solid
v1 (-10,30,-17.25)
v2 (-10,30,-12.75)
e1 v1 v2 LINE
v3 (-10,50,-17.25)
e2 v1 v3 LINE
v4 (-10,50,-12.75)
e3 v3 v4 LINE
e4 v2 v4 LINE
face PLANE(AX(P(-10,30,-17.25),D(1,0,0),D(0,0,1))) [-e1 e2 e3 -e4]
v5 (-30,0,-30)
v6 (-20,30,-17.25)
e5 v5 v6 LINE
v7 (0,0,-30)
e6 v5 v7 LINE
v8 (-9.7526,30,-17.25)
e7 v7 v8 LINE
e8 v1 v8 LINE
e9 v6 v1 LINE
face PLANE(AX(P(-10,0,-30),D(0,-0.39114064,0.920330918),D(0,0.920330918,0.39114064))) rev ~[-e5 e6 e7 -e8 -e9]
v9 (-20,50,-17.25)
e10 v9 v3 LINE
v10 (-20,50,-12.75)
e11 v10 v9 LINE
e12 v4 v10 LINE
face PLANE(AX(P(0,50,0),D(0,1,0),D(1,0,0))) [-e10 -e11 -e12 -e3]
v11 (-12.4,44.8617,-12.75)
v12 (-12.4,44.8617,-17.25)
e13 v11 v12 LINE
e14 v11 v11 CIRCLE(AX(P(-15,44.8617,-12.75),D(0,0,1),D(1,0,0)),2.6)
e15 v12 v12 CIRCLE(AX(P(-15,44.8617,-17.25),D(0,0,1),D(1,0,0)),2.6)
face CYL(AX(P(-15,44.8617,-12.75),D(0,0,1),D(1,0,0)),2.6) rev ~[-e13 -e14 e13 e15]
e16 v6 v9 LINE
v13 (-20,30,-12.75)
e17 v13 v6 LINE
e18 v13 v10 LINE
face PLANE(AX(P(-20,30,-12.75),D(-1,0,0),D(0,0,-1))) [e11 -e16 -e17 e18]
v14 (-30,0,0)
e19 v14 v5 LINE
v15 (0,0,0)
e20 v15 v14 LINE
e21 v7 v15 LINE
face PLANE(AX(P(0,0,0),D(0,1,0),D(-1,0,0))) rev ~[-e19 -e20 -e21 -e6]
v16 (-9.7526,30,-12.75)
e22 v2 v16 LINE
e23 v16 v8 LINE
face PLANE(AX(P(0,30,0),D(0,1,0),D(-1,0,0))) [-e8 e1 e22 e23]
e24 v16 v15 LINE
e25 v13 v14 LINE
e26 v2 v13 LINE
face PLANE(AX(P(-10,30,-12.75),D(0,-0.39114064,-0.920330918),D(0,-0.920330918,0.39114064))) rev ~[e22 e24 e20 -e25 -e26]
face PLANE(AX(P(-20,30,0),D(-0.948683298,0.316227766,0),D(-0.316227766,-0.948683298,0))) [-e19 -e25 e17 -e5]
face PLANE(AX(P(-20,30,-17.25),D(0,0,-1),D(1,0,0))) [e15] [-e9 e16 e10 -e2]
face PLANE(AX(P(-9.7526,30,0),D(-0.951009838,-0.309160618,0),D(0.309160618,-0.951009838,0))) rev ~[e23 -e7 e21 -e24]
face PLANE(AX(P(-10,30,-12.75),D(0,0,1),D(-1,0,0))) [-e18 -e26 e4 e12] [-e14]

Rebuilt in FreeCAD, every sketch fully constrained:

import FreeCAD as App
import Part
import Sketcher


def add_polygon(sketch, points):
    """Adds a closed chain of lines whose ends are joined by coincident constraints."""
    first, n = sketch.GeometryCount, len(points)
    for a, b in zip(points, points[1:] + points[:1]):
        sketch.addGeometry(Part.LineSegment(App.Vector(*a, 0), App.Vector(*b, 0)), False)
    for i in range(n):
        sketch.addConstraint(Sketcher.Constraint("Coincident", first + i, 2, first + (i + 1) % n, 1))

doc = App.newDocument("Part")
body = doc.addObject("PartDesign::Body", "Body")

# Sketch on XZ plane
sketch1 = body.newObject("Sketcher::SketchObject", "Sketch")
sketch1.AttachmentSupport = (doc.getObject("XZ_Plane"), [""])
sketch1.MapMode = "FlatFace"
add_polygon(sketch1, [(-30, 0), (0, 0), (0, -30), (-30, -30)])  # lines 0-3
sketch1.addConstraint([
    Sketcher.Constraint("Horizontal", 0),
    Sketcher.Constraint("Vertical", 1),
    Sketcher.Constraint("Horizontal", 2),
    Sketcher.Constraint("Vertical", 3),
    Sketcher.Constraint("Coincident", 0, 2, -1, 1),
    Sketcher.Constraint("Equal", 2, 1),
    Sketcher.Constraint("DistanceX", 0, 1, 0, 2, 30.0),
])
pad1 = body.newObject("PartDesign::Pad", "Pad")
pad1.Profile = sketch1
pad1.Length = 30
pad1.Reversed = True

# Sketch on XZ plane
sketch2 = body.newObject("Sketcher::SketchObject", "Sketch001")
sketch2.AttachmentSupport = (doc.getObject("XZ_Plane"), [""])
sketch2.MapMode = "FlatFace"
sketch2.AttachmentOffset = App.Placement(App.Vector(0, 0, -30), App.Rotation())
add_polygon(sketch2, [(-10, -17.2), (-20, -17.2), (-20, -12.8), (-10, -12.8)])  # lines 0-3
sketch2.addConstraint([
    Sketcher.Constraint("Horizontal", 0),
    Sketcher.Constraint("Vertical", 1),
    Sketcher.Constraint("Horizontal", 2),
    Sketcher.Constraint("Vertical", 3),
    Sketcher.Constraint("DistanceX", 0, 2, 0, 1, 10.0),
    Sketcher.Constraint("DistanceY", 1, 1, 1, 2, 4.5),
    Sketcher.Constraint("DistanceX", 2, 2, -1, 1, 10.0),
    Sketcher.Constraint("DistanceY", 0, 2, -1, 1, 17.25),
])
pad2 = body.newObject("PartDesign::Pad", "Pad001")
pad2.Profile = sketch2
pad2.Length = 20
pad2.Reversed = True

# Sketch on XY plane
sketch3 = body.newObject("Sketcher::SketchObject", "Sketch002")
sketch3.AttachmentSupport = (doc.getObject("XY_Plane"), [""])
sketch3.MapMode = "FlatFace"
sketch3.AttachmentOffset = App.Placement(App.Vector(0, 0, -12.75), App.Rotation())
sketch3.addGeometry(Part.Circle(App.Vector(-15, 44.9, 0), App.Vector(0, 0, 1), 2.6), False)
sketch3.addConstraint([
    Sketcher.Constraint("Diameter", 0, 5.2),
    Sketcher.Constraint("DistanceX", 0, 3, -1, 1, 15.0),
    Sketcher.Constraint("DistanceY", -1, 1, 0, 3, 44.8617),
])
pocket1 = body.newObject("PartDesign::Pocket", "Pocket")
pocket1.Profile = sketch3
pocket1.Length = 20

# Sketch on XY plane
sketch4 = body.newObject("Sketcher::SketchObject", "Sketch003")
sketch4.AttachmentSupport = (doc.getObject("XY_Plane"), [""])
sketch4.MapMode = "FlatFace"
add_polygon(sketch4, [(0, 30), (-10, 30), (0, 0)])  # lines 0-2
add_polygon(sketch4, [(-30, 0), (-20, 30), (-30, 30)])  # lines 3-5
sketch4.addConstraint([
    Sketcher.Constraint("Horizontal", 0),
    Sketcher.Constraint("Vertical", 2),
    Sketcher.Constraint("Horizontal", 4),
    Sketcher.Constraint("Vertical", 5),
    Sketcher.Constraint("Coincident", 1, 2, -1, 1),
    Sketcher.Constraint("PointOnObject", 5, 2, -1),
    Sketcher.Constraint("Horizontal", 2, 2, 3, 2),
    Sketcher.Constraint("DistanceX", 4, 2, 4, 1, 10.0),
    Sketcher.Constraint("DistanceY", 2, 1, 2, 2, 30.0),
    Sketcher.Constraint("DistanceX", 3, 2, -1, 1, 20.0),
    Sketcher.Constraint("DistanceX", 0, 2, 0, 1, 9.7526),
])
pocket2 = body.newObject("PartDesign::Pocket", "Pocket001")
pocket2.Profile = sketch4
pocket2.Length = 71.25

# Sketch on YZ plane
sketch5 = body.newObject("Sketcher::SketchObject", "Sketch004")
sketch5.AttachmentSupport = (doc.getObject("YZ_Plane"), [""])
sketch5.MapMode = "FlatFace"
sketch5.AttachmentOffset = App.Placement(App.Vector(0, 0, -10), App.Rotation())
add_polygon(sketch5, [(0, 0), (30, -13), (30, 0)])  # lines 0-2
add_polygon(sketch5, [(30, -30), (30, -17), (0, -30)])  # lines 3-5
sketch5.addConstraint([
    Sketcher.Constraint("Vertical", 1),
    Sketcher.Constraint("Horizontal", 2),
    Sketcher.Constraint("Vertical", 3),
    Sketcher.Constraint("Horizontal", 5),
    Sketcher.Constraint("Coincident", 2, 2, -1, 1),
    Sketcher.Constraint("PointOnObject", 4, 2, -2),
    Sketcher.Constraint("Vertical", 1, 2, 3, 2),
    Sketcher.Constraint("Equal", 1, 3),
    Sketcher.Constraint("DistanceX", 2, 2, 2, 1, 30.0),
    Sketcher.Constraint("DistanceY", 4, 2, -1, 1, 30.0),
    Sketcher.Constraint("DistanceY", 1, 1, 1, 2, 12.75),
])
pocket3 = body.newObject("PartDesign::Pocket", "Pocket002")
pocket3.Profile = sketch5
pocket3.Type = "ThroughAll"
pocket3.Midplane = True

doc.recompute()
